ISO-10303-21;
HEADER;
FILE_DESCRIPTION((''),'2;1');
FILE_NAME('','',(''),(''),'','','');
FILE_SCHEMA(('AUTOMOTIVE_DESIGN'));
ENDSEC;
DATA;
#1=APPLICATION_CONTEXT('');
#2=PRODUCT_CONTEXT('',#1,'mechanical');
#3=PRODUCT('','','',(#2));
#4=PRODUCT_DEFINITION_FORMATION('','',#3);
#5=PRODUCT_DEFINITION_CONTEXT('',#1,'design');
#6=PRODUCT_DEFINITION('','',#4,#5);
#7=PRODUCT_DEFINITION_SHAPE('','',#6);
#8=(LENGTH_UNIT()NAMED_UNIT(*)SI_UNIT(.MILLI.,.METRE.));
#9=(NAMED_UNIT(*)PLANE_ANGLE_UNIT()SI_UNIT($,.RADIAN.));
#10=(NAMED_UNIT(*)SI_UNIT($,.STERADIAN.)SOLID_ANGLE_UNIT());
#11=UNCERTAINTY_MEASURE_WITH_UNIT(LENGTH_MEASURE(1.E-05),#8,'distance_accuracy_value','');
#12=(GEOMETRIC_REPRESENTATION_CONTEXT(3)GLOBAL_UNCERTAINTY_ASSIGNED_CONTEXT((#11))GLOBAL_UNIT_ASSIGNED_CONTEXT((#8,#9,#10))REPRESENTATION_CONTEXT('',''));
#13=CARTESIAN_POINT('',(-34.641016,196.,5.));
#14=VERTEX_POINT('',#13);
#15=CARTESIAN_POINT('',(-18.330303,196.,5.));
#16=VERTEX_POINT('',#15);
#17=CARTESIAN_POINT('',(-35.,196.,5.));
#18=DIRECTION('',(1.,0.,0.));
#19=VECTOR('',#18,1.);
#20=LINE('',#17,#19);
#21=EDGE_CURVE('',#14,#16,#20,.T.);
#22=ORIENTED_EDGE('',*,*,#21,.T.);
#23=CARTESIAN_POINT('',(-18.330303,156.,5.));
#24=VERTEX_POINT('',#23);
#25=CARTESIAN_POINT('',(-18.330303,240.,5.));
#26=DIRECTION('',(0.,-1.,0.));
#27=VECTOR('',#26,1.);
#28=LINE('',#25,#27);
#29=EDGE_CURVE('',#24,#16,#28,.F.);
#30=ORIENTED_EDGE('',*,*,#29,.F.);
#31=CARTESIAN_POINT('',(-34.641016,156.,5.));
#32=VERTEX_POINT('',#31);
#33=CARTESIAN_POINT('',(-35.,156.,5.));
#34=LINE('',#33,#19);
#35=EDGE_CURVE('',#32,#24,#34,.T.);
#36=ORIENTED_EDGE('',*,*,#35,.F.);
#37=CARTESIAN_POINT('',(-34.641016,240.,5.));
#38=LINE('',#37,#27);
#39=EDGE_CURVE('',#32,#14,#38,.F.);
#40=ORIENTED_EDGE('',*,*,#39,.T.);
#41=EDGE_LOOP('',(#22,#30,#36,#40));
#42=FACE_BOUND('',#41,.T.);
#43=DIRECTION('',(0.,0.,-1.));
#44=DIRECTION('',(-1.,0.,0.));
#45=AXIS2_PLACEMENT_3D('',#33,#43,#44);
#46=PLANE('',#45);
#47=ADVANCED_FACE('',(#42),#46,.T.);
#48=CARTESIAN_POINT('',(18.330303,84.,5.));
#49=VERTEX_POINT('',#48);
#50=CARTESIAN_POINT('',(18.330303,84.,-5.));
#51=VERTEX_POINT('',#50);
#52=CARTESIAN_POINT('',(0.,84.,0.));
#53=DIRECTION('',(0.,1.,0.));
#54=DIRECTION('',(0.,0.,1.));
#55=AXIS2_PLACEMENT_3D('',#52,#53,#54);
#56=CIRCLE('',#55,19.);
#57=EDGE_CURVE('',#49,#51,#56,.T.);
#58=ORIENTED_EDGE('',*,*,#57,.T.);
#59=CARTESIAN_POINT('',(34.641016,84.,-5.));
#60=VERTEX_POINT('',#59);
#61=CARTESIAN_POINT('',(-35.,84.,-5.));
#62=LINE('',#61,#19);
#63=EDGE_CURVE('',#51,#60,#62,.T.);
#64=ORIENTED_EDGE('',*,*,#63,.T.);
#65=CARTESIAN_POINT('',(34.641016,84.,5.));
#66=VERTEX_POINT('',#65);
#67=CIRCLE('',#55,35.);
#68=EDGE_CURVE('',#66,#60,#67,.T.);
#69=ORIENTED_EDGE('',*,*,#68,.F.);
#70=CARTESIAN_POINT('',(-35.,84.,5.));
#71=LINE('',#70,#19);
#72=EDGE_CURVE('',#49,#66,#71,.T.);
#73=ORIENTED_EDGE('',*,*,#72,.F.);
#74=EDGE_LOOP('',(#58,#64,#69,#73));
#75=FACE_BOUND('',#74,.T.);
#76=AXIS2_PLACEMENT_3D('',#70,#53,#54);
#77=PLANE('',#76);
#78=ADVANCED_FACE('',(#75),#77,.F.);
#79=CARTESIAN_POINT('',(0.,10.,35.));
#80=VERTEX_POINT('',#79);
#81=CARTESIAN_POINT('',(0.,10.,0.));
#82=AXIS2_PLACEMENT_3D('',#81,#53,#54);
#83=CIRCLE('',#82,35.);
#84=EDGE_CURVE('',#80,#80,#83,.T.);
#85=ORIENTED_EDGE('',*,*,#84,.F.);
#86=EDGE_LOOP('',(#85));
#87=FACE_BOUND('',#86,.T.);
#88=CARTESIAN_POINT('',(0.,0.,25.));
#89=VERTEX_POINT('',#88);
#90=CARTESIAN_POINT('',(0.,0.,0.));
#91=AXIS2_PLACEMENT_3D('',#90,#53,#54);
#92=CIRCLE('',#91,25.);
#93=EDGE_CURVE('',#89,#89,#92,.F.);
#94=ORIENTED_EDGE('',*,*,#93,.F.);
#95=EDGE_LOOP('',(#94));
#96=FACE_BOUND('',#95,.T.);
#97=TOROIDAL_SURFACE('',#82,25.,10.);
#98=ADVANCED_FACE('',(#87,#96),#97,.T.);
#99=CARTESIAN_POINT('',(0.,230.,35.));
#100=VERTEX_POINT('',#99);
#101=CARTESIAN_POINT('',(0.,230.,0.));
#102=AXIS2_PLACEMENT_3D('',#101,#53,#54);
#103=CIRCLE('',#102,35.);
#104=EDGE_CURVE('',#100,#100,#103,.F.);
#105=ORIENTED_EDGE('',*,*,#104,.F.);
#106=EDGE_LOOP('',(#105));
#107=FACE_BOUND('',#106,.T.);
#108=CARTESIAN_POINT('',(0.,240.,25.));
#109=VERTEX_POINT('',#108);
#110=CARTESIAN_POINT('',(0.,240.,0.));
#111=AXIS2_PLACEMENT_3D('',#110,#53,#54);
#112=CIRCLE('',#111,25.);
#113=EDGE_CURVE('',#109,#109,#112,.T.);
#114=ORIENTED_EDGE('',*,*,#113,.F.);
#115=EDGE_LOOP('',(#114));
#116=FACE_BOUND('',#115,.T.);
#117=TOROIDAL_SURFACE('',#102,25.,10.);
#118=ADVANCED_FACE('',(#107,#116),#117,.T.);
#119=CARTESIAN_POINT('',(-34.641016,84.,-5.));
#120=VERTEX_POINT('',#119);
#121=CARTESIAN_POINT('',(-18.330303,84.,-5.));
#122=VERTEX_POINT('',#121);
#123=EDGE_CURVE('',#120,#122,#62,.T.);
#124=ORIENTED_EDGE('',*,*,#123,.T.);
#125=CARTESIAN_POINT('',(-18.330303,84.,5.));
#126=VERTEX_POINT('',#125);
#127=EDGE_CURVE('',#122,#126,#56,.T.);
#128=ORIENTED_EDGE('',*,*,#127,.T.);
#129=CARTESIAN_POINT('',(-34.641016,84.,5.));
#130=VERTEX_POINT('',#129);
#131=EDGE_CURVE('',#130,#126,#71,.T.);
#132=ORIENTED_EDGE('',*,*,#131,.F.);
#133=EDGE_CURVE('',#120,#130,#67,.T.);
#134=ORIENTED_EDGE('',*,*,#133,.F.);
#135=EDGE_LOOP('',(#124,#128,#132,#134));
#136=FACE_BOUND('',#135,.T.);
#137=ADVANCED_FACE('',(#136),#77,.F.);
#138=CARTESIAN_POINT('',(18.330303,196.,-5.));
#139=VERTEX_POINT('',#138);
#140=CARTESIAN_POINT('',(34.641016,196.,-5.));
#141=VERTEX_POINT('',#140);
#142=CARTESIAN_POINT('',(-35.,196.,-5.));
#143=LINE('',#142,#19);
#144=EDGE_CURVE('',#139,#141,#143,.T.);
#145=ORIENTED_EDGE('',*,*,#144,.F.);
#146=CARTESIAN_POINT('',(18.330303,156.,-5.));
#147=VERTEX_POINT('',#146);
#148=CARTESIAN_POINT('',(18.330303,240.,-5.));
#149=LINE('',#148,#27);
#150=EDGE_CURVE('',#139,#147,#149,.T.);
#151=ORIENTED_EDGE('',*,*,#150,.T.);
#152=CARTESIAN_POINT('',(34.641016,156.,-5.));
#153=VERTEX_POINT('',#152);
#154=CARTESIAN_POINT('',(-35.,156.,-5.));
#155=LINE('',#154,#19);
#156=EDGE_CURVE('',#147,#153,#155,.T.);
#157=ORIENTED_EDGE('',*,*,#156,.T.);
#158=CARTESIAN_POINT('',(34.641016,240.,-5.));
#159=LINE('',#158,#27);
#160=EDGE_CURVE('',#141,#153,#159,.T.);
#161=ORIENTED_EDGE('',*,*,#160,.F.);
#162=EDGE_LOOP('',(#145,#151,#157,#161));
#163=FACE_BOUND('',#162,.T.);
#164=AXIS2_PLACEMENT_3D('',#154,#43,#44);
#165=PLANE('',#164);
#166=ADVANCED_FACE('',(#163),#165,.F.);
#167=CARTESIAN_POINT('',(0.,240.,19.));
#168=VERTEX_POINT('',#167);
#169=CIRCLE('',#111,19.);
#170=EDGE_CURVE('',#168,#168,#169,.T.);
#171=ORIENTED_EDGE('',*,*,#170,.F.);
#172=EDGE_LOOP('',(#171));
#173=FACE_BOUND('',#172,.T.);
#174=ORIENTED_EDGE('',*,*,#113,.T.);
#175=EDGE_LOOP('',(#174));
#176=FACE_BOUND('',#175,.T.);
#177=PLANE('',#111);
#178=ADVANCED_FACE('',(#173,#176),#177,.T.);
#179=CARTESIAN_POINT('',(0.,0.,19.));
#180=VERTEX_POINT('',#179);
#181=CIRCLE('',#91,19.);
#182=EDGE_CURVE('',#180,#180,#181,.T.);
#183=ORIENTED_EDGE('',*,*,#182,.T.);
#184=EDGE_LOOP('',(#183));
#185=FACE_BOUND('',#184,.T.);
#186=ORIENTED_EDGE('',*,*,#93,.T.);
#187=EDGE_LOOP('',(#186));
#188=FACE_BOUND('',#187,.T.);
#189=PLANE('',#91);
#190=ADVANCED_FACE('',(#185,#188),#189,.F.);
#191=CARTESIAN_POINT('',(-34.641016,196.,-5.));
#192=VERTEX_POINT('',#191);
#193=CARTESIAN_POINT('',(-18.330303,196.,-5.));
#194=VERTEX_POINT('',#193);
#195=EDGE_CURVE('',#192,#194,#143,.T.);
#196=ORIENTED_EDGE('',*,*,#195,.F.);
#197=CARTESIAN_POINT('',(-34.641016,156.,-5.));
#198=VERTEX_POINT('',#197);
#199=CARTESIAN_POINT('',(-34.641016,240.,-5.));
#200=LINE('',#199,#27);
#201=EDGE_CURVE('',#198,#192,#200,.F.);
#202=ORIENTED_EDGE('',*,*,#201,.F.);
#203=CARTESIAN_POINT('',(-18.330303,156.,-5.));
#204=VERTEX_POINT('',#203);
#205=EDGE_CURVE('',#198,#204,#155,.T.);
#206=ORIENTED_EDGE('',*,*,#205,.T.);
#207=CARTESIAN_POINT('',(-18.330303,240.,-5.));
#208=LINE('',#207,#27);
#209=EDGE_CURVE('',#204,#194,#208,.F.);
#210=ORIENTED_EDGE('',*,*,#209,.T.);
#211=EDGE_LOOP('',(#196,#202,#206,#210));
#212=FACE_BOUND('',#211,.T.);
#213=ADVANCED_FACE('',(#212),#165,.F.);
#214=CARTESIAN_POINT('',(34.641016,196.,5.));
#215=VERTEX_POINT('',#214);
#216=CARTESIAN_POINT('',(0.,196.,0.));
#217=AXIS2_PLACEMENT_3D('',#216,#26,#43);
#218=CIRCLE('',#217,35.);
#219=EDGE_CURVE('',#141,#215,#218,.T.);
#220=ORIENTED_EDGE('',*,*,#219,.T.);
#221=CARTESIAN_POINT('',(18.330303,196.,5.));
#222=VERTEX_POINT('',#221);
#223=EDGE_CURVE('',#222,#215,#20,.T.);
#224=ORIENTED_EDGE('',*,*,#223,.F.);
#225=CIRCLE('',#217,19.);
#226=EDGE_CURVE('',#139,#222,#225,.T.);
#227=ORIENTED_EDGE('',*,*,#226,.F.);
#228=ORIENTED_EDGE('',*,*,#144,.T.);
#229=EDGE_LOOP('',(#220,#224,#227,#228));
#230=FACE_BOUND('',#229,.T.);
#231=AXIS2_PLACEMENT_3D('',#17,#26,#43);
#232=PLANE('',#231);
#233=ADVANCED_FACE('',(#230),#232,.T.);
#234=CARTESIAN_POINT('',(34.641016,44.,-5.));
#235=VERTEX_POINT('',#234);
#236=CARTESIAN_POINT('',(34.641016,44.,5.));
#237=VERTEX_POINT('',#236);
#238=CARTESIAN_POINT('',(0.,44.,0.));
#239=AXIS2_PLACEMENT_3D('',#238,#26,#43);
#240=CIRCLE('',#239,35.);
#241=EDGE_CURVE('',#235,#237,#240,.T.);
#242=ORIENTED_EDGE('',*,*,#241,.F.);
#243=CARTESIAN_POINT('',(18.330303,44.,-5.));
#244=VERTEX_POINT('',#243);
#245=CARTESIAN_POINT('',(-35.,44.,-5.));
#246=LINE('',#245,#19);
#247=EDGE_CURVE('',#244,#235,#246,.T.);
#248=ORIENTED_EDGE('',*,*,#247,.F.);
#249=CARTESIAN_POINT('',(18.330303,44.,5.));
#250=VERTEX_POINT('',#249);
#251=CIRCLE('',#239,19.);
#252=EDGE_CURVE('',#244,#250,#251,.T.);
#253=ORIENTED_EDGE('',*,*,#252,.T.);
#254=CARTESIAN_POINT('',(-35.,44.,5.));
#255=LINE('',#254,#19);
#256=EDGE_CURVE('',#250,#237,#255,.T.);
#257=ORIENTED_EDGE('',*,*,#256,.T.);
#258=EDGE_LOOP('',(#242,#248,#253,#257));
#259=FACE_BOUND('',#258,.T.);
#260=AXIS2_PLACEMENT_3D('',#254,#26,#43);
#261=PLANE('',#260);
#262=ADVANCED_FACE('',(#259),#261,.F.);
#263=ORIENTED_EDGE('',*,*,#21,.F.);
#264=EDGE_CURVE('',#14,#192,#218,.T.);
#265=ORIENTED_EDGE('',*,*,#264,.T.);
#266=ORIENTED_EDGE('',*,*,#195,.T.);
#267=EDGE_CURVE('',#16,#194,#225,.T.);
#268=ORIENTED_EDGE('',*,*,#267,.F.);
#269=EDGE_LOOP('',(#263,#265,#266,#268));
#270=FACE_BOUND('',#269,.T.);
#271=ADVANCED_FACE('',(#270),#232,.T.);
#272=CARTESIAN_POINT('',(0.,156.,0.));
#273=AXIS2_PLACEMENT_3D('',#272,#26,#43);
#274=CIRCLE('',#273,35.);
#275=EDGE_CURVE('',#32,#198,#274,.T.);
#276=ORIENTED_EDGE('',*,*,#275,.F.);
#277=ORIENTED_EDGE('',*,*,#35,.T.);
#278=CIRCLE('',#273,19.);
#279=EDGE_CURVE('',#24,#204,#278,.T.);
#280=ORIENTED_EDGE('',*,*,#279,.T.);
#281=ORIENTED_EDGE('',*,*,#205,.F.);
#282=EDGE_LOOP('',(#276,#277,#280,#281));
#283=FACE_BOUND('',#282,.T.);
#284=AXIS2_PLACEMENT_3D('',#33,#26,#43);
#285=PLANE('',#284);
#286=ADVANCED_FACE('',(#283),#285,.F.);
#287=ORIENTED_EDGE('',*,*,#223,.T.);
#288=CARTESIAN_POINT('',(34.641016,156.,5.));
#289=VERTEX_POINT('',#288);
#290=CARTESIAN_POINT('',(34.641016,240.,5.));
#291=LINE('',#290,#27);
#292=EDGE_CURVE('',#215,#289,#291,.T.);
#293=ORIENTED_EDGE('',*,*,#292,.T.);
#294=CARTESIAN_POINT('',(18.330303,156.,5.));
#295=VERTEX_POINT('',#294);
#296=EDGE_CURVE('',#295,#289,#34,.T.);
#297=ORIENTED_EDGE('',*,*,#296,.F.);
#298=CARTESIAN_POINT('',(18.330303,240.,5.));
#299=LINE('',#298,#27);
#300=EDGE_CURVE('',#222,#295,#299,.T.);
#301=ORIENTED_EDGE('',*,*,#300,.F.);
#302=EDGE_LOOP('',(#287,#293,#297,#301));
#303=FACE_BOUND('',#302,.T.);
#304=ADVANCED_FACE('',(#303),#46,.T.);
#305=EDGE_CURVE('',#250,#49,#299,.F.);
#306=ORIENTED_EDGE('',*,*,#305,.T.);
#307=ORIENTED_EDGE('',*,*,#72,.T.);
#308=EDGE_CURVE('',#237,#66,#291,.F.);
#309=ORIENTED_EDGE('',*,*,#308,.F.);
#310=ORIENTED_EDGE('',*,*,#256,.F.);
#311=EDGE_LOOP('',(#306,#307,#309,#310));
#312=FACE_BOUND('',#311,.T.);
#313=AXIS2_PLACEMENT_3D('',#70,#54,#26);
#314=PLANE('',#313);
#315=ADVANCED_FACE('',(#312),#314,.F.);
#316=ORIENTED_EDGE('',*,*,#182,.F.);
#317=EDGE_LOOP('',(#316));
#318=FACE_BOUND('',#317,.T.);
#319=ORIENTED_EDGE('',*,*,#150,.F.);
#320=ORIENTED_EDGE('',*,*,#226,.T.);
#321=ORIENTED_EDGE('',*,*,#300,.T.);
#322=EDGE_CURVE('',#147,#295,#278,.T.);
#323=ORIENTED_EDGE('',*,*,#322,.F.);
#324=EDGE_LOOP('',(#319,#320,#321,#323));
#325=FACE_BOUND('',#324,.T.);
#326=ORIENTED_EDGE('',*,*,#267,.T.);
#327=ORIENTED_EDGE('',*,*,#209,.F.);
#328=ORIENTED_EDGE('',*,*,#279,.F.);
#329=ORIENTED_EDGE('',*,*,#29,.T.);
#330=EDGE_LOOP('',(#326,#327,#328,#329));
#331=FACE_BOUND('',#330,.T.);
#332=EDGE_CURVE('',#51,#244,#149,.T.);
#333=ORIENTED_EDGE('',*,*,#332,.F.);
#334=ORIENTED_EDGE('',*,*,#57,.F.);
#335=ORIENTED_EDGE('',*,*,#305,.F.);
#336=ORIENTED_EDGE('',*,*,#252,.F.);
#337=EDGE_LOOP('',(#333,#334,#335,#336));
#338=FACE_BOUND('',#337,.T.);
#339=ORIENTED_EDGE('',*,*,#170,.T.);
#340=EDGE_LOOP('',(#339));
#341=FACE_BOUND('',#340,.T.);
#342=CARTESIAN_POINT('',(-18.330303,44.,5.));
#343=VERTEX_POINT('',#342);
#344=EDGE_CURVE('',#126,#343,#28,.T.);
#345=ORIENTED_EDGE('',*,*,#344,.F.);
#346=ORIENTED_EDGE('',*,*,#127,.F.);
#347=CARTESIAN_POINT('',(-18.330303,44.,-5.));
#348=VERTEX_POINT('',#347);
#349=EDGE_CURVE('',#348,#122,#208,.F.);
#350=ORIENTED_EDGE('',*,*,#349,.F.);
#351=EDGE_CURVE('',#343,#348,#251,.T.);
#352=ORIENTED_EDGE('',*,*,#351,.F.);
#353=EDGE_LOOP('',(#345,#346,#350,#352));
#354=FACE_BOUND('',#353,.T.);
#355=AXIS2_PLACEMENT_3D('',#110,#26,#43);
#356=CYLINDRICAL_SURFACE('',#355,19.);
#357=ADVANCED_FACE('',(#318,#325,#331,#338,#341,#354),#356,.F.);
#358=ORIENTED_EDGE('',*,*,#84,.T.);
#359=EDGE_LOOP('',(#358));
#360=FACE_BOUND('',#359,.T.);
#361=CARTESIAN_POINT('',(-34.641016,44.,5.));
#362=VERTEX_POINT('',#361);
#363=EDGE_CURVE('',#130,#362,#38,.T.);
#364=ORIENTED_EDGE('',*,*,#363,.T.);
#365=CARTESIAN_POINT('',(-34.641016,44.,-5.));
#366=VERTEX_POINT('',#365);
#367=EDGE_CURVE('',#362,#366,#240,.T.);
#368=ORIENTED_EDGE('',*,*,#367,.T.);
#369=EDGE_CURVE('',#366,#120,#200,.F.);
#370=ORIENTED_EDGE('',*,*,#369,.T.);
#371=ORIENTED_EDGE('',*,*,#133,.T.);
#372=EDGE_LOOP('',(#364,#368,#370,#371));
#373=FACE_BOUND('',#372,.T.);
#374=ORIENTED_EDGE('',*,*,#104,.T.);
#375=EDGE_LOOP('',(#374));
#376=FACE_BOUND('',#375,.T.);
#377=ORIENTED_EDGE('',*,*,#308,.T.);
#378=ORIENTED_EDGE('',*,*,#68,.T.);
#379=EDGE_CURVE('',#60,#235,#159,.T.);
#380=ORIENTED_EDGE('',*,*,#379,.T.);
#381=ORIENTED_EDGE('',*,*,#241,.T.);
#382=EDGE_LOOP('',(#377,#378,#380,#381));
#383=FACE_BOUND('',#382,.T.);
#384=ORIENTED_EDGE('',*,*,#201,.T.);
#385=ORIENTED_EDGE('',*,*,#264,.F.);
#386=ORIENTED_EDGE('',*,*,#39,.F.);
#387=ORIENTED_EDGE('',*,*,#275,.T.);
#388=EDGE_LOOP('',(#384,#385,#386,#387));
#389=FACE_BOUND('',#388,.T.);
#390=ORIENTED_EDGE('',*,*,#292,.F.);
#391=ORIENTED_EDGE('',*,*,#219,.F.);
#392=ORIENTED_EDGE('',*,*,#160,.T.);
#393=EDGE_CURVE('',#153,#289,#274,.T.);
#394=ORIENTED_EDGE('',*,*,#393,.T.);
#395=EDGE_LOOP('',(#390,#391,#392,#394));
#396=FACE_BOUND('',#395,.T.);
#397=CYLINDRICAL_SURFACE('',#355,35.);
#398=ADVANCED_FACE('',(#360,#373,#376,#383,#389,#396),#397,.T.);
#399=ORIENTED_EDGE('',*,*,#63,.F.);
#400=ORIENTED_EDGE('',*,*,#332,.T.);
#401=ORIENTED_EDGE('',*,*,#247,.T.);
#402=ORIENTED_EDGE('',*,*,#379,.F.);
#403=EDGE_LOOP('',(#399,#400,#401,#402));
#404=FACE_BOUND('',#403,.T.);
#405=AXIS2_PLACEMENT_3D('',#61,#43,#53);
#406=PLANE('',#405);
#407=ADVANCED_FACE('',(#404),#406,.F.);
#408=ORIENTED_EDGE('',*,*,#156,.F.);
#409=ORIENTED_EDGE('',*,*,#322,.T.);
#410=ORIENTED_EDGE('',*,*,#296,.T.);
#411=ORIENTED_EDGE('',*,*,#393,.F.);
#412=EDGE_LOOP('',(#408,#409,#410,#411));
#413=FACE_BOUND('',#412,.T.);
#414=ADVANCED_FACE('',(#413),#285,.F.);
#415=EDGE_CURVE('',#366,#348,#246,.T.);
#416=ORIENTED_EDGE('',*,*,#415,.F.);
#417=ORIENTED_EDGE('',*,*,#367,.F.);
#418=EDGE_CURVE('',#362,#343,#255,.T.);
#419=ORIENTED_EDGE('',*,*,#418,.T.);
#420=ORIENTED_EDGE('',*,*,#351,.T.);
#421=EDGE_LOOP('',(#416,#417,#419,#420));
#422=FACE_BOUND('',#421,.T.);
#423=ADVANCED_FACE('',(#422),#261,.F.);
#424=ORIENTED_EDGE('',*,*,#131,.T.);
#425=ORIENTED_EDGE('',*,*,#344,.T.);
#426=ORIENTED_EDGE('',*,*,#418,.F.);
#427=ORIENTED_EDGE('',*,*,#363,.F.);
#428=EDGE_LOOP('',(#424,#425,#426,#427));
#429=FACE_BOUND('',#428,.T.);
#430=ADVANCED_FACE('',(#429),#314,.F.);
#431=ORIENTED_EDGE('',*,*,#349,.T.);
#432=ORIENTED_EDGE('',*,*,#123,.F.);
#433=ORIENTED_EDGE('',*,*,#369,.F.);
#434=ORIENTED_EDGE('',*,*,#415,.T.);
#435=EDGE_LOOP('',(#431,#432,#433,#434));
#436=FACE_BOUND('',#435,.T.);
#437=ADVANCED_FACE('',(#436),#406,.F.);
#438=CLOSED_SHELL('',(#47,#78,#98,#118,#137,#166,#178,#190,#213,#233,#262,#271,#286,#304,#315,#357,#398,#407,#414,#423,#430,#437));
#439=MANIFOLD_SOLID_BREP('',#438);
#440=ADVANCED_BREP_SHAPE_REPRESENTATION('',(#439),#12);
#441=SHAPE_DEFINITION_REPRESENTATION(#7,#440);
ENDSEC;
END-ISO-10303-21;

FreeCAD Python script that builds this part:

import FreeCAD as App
import Part
import Sketcher


def edges_at(feature, points):
    """Names of the edges that pass closest to the given points."""
    edges = feature.Shape.Edges
    near = lambda p: min(range(len(edges)), key=lambda i: edges[i].distToShape(Part.Vertex(*p))[0])
    return sorted({f"Edge{near(p) + 1}" for p in points})


def add_polygon(sketch, points):
    """Adds a closed chain of lines whose ends are joined by coincident constraints."""
    first, n = sketch.GeometryCount, len(points)
    for a, b in zip(points, points[1:] + points[:1]):
        sketch.addGeometry(Part.LineSegment(App.Vector(*a, 0), App.Vector(*b, 0)), False)
    for i in range(n):
        sketch.addConstraint(Sketcher.Constraint("Coincident", first + i, 2, first + (i + 1) % n, 1))

doc = App.newDocument("Part")
params = doc.addObject("Spreadsheet::Sheet", "Params")
for row, (alias, value) in enumerate([
    ("sketch1_diameter", "70 mm"),
    ("sketch1_diameter2", "38 mm"),
    ("pad1_length", "240 mm"),
    ("sketch2_width", "40 mm"),
    ("sketch2_height", "10 mm"),
    ("sketch3_width", "40 mm"),
    ("sketch3_height", "10 mm"),
    ("fillet_radius", "10 mm"),
    ("fillet2_radius", "10 mm"),
], start=1):
    params.set(f"A{row}", alias)
    params.set(f"B{row}", "=" + value)
    params.setAlias(f"B{row}", alias)

body = doc.addObject("PartDesign::Body", "Body")

# Sketch on XZ plane
sketch1 = body.newObject("Sketcher::SketchObject", "Sketch")
sketch1.AttachmentSupport = (doc.getObject("XZ_Plane"), [""])
sketch1.MapMode = "FlatFace"
sketch1.addGeometry(Part.Circle(App.Vector(0, 0, 0), App.Vector(0, 0, 1), 35), False)
sketch1.addGeometry(Part.Circle(App.Vector(0, 0, 0), App.Vector(0, 0, 1), 19), False)
sketch1.addConstraint(Sketcher.Constraint("Coincident", 0, 3, -1, 1))
sketch1.addConstraint(Sketcher.Constraint("Coincident", 1, 3, -1, 1))
sketch1.addConstraint(Sketcher.Constraint("Diameter", 0, 70.0))
sketch1.addConstraint(Sketcher.Constraint("Diameter", 1, 38.0))
sketch1.setExpression("Constraints[2]", "Params.sketch1_diameter")
sketch1.setExpression("Constraints[3]", "Params.sketch1_diameter2")
pad1 = body.newObject("PartDesign::Pad", "Pad")
pad1.Profile = sketch1
pad1.setExpression("Length", "Params.pad1_length")
pad1.Reversed = True

# Sketch on YZ plane
sketch2 = body.newObject("Sketcher::SketchObject", "Sketch001")
sketch2.AttachmentSupport = (doc.getObject("YZ_Plane"), [""])
sketch2.MapMode = "FlatFace"
add_polygon(sketch2, [(196, 5), (156, 5), (156, -5), (196, -5)])  # lines 0-3
sketch2.addConstraint(Sketcher.Constraint("Horizontal", 0))
sketch2.addConstraint(Sketcher.Constraint("Vertical", 1))
sketch2.addConstraint(Sketcher.Constraint("Horizontal", 2))
sketch2.addConstraint(Sketcher.Constraint("Vertical", 3))
sketch2.addConstraint(Sketcher.Constraint("DistanceX", 0, 2, 0, 1, 40.0))
sketch2.addConstraint(Sketcher.Constraint("DistanceY", 1, 2, 1, 1, 10.0))
sketch2.addConstraint(Sketcher.Constraint("DistanceX", -1, 1, 0, 2, 156.0))
sketch2.addConstraint(Sketcher.Constraint("DistanceY", -1, 1, 0, 2, 5.0))
sketch2.setExpression("Constraints[8]", "Params.sketch2_width")
sketch2.setExpression("Constraints[9]", "Params.sketch2_height")
pocket1 = body.newObject("PartDesign::Pocket", "Pocket")
pocket1.Profile = sketch2
pocket1.Type = "ThroughAll"
pocket1.Midplane = True

# Sketch on YZ plane
sketch3 = body.newObject("Sketcher::SketchObject", "Sketch002")
sketch3.AttachmentSupport = (doc.getObject("YZ_Plane"), [""])
sketch3.MapMode = "FlatFace"
add_polygon(sketch3, [(84, 5), (44, 5), (44, -5), (84, -5)])  # lines 0-3
sketch3.addConstraint(Sketcher.Constraint("Horizontal", 0))
sketch3.addConstraint(Sketcher.Constraint("Vertical", 1))
sketch3.addConstraint(Sketcher.Constraint("Horizontal", 2))
sketch3.addConstraint(Sketcher.Constraint("Vertical", 3))
sketch3.addConstraint(Sketcher.Constraint("DistanceX", 0, 2, 0, 1, 40.0))
sketch3.addConstraint(Sketcher.Constraint("DistanceY", 1, 2, 1, 1, 10.0))
sketch3.addConstraint(Sketcher.Constraint("DistanceX", -1, 1, 0, 2, 44.0))
sketch3.addConstraint(Sketcher.Constraint("DistanceY", -1, 1, 0, 2, 5.0))
sketch3.setExpression("Constraints[8]", "Params.sketch3_width")
sketch3.setExpression("Constraints[9]", "Params.sketch3_height")
pocket2 = body.newObject("PartDesign::Pocket", "Pocket001")
pocket2.Profile = sketch3
pocket2.Type = "ThroughAll"
pocket2.Midplane = True
doc.recompute()

fillet = body.newObject("PartDesign::Fillet", "Fillet")
fillet.Base = (pocket2, edges_at(pocket2, [(0, 240, -35)]))
fillet.setExpression("Radius", "Params.fillet_radius")
doc.recompute()

fillet2 = body.newObject("PartDesign::Fillet", "Fillet001")
fillet2.Base = (fillet, edges_at(fillet, [(0, 0, -35)]))
fillet2.setExpression("Radius", "Params.fillet2_radius")

doc.recompute()
